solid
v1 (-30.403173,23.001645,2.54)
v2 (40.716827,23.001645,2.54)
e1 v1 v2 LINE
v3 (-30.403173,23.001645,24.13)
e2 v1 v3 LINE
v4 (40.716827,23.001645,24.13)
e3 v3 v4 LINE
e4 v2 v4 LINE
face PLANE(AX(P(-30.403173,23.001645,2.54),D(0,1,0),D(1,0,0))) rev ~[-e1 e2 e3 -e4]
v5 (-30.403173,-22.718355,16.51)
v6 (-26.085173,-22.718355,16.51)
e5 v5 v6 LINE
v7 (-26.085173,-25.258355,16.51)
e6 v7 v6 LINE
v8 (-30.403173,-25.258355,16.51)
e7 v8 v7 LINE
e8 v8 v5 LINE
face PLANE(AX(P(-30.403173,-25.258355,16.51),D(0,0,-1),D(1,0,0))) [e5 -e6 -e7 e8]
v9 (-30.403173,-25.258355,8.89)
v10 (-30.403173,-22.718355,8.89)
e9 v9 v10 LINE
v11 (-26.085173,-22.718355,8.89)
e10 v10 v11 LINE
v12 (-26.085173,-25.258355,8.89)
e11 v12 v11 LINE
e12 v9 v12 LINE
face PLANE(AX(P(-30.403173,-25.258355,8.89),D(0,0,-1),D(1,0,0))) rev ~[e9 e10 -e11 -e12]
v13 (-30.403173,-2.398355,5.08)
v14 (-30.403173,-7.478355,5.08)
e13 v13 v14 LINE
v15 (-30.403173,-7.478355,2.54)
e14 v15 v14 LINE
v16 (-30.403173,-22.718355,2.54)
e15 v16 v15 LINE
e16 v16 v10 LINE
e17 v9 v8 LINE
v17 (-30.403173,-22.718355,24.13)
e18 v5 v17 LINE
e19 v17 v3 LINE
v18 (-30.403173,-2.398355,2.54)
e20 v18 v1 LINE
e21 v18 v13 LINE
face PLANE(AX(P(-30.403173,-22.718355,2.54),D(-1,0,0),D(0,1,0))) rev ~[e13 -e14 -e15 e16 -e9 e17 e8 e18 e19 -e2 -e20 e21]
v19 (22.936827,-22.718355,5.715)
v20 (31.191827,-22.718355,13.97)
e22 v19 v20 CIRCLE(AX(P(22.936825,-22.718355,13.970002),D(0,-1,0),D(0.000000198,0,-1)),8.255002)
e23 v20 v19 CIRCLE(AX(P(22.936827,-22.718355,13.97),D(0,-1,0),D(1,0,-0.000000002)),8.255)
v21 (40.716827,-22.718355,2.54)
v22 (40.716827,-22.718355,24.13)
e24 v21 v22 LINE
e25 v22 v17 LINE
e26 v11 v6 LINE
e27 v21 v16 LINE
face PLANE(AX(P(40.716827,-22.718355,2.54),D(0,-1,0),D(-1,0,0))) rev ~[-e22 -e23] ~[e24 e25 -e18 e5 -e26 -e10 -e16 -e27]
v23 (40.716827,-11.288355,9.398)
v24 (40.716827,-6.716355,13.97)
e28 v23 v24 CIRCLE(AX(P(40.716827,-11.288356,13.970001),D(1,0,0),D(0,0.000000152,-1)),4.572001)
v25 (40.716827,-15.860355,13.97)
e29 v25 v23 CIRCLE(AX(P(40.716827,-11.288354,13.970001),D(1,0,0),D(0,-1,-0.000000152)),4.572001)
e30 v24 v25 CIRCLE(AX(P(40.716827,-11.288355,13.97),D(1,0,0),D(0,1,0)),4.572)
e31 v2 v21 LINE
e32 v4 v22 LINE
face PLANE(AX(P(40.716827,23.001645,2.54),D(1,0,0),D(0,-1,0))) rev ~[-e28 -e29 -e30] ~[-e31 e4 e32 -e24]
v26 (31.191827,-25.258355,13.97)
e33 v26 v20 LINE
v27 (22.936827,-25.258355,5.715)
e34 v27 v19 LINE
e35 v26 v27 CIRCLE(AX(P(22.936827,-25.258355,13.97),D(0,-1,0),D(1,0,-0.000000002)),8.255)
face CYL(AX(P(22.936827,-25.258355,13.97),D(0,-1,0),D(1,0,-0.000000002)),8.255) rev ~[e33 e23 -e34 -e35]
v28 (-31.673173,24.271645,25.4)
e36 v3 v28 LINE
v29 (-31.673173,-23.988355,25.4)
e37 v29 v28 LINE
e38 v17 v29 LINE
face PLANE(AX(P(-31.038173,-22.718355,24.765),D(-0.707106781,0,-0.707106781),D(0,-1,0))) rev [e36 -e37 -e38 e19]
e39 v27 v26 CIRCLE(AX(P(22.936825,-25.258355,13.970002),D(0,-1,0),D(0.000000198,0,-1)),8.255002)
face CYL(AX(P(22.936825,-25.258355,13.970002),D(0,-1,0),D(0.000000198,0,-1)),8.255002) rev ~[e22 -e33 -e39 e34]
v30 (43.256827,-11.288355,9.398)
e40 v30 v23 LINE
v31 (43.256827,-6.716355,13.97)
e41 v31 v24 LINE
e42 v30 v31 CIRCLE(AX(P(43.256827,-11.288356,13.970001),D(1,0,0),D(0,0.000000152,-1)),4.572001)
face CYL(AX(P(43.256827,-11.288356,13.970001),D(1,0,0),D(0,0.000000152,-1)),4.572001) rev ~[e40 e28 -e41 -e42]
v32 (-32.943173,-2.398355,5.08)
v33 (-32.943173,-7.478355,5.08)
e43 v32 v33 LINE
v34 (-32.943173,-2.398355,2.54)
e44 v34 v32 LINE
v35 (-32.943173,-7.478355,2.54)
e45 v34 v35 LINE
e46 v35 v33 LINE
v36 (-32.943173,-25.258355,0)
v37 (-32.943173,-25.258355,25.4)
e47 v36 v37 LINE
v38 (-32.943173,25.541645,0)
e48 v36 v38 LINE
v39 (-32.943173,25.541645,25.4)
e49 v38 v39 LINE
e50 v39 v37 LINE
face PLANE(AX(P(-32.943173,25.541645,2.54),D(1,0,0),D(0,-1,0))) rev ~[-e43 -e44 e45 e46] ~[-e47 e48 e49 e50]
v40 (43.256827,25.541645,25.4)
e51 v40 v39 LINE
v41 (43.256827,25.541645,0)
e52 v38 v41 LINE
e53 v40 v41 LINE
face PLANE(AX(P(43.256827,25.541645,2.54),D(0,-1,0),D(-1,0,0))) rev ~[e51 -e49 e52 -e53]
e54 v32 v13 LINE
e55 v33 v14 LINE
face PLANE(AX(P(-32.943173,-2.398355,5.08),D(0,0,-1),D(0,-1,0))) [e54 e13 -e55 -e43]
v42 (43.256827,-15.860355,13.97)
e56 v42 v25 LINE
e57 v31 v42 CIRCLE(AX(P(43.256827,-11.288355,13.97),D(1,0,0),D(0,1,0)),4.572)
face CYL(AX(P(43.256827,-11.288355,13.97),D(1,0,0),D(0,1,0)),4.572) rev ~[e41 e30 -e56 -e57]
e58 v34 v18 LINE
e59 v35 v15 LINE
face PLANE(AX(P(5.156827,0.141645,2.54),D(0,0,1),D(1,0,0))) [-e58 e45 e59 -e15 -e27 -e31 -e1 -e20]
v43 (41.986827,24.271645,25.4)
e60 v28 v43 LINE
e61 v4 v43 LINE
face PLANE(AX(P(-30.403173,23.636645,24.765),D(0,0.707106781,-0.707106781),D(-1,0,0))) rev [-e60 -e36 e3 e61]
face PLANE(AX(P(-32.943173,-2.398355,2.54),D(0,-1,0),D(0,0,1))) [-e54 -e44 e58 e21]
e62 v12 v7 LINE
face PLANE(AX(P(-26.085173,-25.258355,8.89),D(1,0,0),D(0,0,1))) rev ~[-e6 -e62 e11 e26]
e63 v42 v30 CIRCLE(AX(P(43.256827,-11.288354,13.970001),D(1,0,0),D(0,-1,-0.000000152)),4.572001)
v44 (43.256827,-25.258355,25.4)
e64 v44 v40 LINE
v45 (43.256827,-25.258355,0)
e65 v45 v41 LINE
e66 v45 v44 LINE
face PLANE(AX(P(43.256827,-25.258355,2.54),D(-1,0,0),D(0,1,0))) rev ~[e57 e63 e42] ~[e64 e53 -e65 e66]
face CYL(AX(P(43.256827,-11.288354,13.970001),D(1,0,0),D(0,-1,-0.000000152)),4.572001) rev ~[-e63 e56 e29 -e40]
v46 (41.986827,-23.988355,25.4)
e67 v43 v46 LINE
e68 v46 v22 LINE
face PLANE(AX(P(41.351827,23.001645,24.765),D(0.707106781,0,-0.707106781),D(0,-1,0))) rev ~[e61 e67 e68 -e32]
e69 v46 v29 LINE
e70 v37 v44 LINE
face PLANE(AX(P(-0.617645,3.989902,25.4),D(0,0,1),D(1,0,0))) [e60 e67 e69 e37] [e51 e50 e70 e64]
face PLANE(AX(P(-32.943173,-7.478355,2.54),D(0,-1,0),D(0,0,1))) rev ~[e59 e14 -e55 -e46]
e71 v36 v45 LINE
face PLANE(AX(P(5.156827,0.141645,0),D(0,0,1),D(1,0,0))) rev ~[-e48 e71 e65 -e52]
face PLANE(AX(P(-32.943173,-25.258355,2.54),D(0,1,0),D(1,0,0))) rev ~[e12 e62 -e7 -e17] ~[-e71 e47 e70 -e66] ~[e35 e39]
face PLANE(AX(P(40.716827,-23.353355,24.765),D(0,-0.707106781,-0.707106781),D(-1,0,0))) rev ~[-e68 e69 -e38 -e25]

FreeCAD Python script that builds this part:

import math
import FreeCAD as App
import Part
import Sketcher
Q = App.Units.Quantity


def edges_at(feature, points):
    """Names of the edges that pass closest to the given points."""
    edges = feature.Shape.Edges
    near = lambda p: min(range(len(edges)), key=lambda i: edges[i].distToShape(Part.Vertex(*p))[0])
    return sorted({f"Edge{near(p) + 1}" for p in points})


def add_polygon(sketch, points):
    """Adds a closed chain of lines whose ends are joined by coincident constraints."""
    first, n = sketch.GeometryCount, len(points)
    for a, b in zip(points, points[1:] + points[:1]):
        sketch.addGeometry(Part.LineSegment(App.Vector(*a, 0), App.Vector(*b, 0)), False)
    for i in range(n):
        sketch.addConstraint(Sketcher.Constraint("Coincident", first + i, 2, first + (i + 1) % n, 1))

doc = App.newDocument("Part")
body = doc.addObject("PartDesign::Body", "Body")

sketch1 = body.newObject("Sketcher::SketchObject", "Sketch")
sketch1.AttachmentSupport = (doc.getObject("XY_Plane"), [""])
sketch1.MapMode = "FlatFace"
add_polygon(sketch1, [(-33, 26), (-33, -25), (43, -25), (43, 26)])
sketch1.addConstraint([
    Sketcher.Constraint("Vertical", 0),
    Sketcher.Constraint("Horizontal", 1),
    Sketcher.Constraint("Vertical", 2),
    Sketcher.Constraint("Horizontal", 3),
    Sketcher.Constraint("DistanceX", 1, 1, 1, 2, Q("3 in")),
    Sketcher.Constraint("DistanceY", 0, 2, 0, 1, Q("2 in")),
    Sketcher.Constraint("DistanceX", 0, 2, -1, 1, 32.943173),
    Sketcher.Constraint("DistanceY", 0, 2, -1, 1, 25.258355),
])
pad1 = body.newObject("PartDesign::Pad", "Pad")
pad1.Profile = sketch1
pad1.Length = Q("0.1 in")

sketch2 = body.newObject("Sketcher::SketchObject", "Sketch001")
sketch2.AttachmentSupport = (doc.getObject("XY_Plane"), [""])
sketch2.MapMode = "FlatFace"
sketch2.AttachmentOffset = App.Placement(App.Vector(0, 0, 0.1 * 25.4), App.Rotation())
add_polygon(sketch2, [(43, 26), (-33, 26), (-33, -25), (43, -25)])
add_polygon(sketch2, [(-30, -23), (-30, 23), (41, 23), (41, -23)])
sketch2.addConstraint([
    Sketcher.Constraint("Horizontal", 0),
    Sketcher.Constraint("Vertical", 1),
    Sketcher.Constraint("Horizontal", 2),
    Sketcher.Constraint("Vertical", 3),
    Sketcher.Constraint("Vertical", 4),
    Sketcher.Constraint("Horizontal", 5),
    Sketcher.Constraint("Vertical", 6),
    Sketcher.Constraint("Horizontal", 7),
    Sketcher.Constraint("DistanceX", 0, 2, 0, 1, Q("3 in")),
    Sketcher.Constraint("DistanceY", 1, 2, 1, 1, Q("2 in")),
    Sketcher.Constraint("DistanceX", 5, 1, 5, 2, Q("2.8 in")),
    Sketcher.Constraint("DistanceY", 4, 1, 4, 2, Q("1.8 in")),
    Sketcher.Constraint("DistanceX", 0, 2, 4, 2, Q("0.1 in")),
    Sketcher.Constraint("DistanceY", 4, 2, 0, 2, Q("0.1 in")),
    Sketcher.Constraint("DistanceX", 0, 2, -1, 1, 32.943173),
    Sketcher.Constraint("DistanceY", -1, 1, 0, 2, 25.541645),
])
pad2 = body.newObject("PartDesign::Pad", "Pad001")
pad2.Profile = sketch2
pad2.Length = Q("0.9 in")

sketch3 = body.newObject("Sketcher::SketchObject", "Sketch002")
sketch3.AttachmentSupport = (doc.getObject("XZ_Plane"), [""])
sketch3.MapMode = "FlatFace"
sketch3.AttachmentOffset = App.Placement(App.Vector(0, 0, 25.258355), App.Rotation())
sketch3.addGeometry([
    Part.ArcOfCircle(Part.Circle(App.Vector(23, 14, 0), App.Vector(0, 0, 1), 8), math.radians(0), math.radians(270)),
    Part.ArcOfCircle(Part.Circle(App.Vector(23, 14, 0), App.Vector(0, 0, 1), 8), math.radians(-90), math.radians(0)),
], False)
sketch3.addConstraint([
    Sketcher.Constraint("Tangent", 0, 1, 1, 2),
    Sketcher.Constraint("Coincident", 1, 1, 0, 2),
    Sketcher.Constraint("Horizontal", 1, 3, 0, 1),
    Sketcher.Constraint("Vertical", 0, 3, 1, 1),
    Sketcher.Constraint("Radius", 0, Q("0.325 in")),
    Sketcher.Constraint("DistanceY", -1, 1, 0, 3, Q("0.55 in")),
    Sketcher.Constraint("DistanceX", -1, 1, 0, 3, 22.936827),
])
pocket1 = body.newObject("PartDesign::Pocket", "Pocket")
pocket1.Profile = sketch3
pocket1.Length = Q("1 in")

sketch4 = body.newObject("Sketcher::SketchObject", "Sketch003")
sketch4.AttachmentSupport = (doc.getObject("YZ_Plane"), [""])
sketch4.MapMode = "FlatFace"
sketch4.AttachmentOffset = App.Placement(App.Vector(0, 0, 43.256827), App.Rotation())
sketch4.addGeometry([
    Part.ArcOfCircle(Part.Circle(App.Vector(-11.3, 14, 0), App.Vector(0, 0, 1), 4.6), math.radians(-90), math.radians(0)),
    Part.ArcOfCircle(Part.Circle(App.Vector(-11.3, 14, 0), App.Vector(0, 0, 1), 4.6), math.radians(0), math.radians(180)),
    Part.ArcOfCircle(Part.Circle(App.Vector(-11.3, 14, 0), App.Vector(0, 0, 1), 4.6), math.radians(-180), math.radians(-90)),
], False)
sketch4.addConstraint([
    Sketcher.Constraint("Tangent", 0, 2, 1, 1),
    Sketcher.Constraint("Tangent", 1, 2, 2, 1),
    Sketcher.Constraint("Tangent", 2, 2, 0, 1),
    Sketcher.Constraint("Horizontal", 2, 3, 0, 2),
    Sketcher.Constraint("Horizontal", 0, 2, 1, 2),
    Sketcher.Constraint("Vertical", 1, 3, 2, 2),
    Sketcher.Constraint("Radius", 0, Q("0.18 in")),
    Sketcher.Constraint("DistanceY", -1, 1, 0, 3, Q("0.55 in")),
    Sketcher.Constraint("DistanceX", 0, 3, -1, 1, 11.288356),
])
pocket2 = body.newObject("PartDesign::Pocket", "Pocket001")
pocket2.Profile = sketch4
pocket2.Length = Q("1 in")

sketch5 = body.newObject("Sketcher::SketchObject", "Sketch004")
sketch5.AttachmentSupport = (doc.getObject("XZ_Plane"), [""])
sketch5.MapMode = "FlatFace"
sketch5.AttachmentOffset = App.Placement(App.Vector(0, 0, 25.258355), App.Rotation())
add_polygon(sketch5, [(-30.4, 16.5), (-30.4, 8.9), (-26.1, 8.9), (-26.1, 16.5)])
sketch5.addConstraint([
    Sketcher.Constraint("Vertical", 0),
    Sketcher.Constraint("Horizontal", 1),
    Sketcher.Constraint("Vertical", 2),
    Sketcher.Constraint("Horizontal", 3),
    Sketcher.Constraint("DistanceY", 0, 2, 0, 1, Q("0.3 in")),
    Sketcher.Constraint("DistanceX", 1, 1, 1, 2, Q("0.17 in")),
    Sketcher.Constraint("DistanceY", -1, 1, 0, 2, Q("0.35 in")),
    Sketcher.Constraint("DistanceX", 0, 2, -1, 1, 30.403173),
])
pocket3 = body.newObject("PartDesign::Pocket", "Pocket002")
pocket3.Profile = sketch5
pocket3.Length = Q("1 in")

sketch6 = body.newObject("Sketcher::SketchObject", "Sketch005")
sketch6.AttachmentSupport = (doc.getObject("YZ_Plane"), [""])
sketch6.MapMode = "FlatFace"
sketch6.AttachmentOffset = App.Placement(App.Vector(0, 0, -32.943173), App.Rotation())
add_polygon(sketch6, [(-2.4, 5.1), (-2.4, 2.5), (-7.5, 2.5), (-7.5, 5.1)])
sketch6.addConstraint([
    Sketcher.Constraint("Vertical", 0),
    Sketcher.Constraint("Horizontal", 1),
    Sketcher.Constraint("Vertical", 2),
    Sketcher.Constraint("Horizontal", 3),
    Sketcher.Constraint("DistanceX", 1, 2, 1, 1, Q("0.2 in")),
    Sketcher.Constraint("DistanceY", 0, 2, 0, 1, Q("0.1 in")),
    Sketcher.Constraint("DistanceY", -1, 1, 0, 2, Q("0.1 in")),
    Sketcher.Constraint("DistanceX", 0, 2, -1, 1, 2.398355),
])
pocket4 = body.newObject("PartDesign::Pocket", "Pocket003")
pocket4.Profile = sketch6
pocket4.Length = Q("1 in")
pocket4.Reversed = True
doc.recompute()

chamfer = body.newObject("PartDesign::Chamfer", "Chamfer")
chamfer.Base = (pocket4, edges_at(pocket4, [
    (5.157, 23.002, 25.4),
    (-30.403, 0.142, 25.4),
    (40.717, 0.142, 25.4),
    (5.157, -22.718, 25.4),
]))
chamfer.Size = Q("0.05 in")

doc.recompute()
